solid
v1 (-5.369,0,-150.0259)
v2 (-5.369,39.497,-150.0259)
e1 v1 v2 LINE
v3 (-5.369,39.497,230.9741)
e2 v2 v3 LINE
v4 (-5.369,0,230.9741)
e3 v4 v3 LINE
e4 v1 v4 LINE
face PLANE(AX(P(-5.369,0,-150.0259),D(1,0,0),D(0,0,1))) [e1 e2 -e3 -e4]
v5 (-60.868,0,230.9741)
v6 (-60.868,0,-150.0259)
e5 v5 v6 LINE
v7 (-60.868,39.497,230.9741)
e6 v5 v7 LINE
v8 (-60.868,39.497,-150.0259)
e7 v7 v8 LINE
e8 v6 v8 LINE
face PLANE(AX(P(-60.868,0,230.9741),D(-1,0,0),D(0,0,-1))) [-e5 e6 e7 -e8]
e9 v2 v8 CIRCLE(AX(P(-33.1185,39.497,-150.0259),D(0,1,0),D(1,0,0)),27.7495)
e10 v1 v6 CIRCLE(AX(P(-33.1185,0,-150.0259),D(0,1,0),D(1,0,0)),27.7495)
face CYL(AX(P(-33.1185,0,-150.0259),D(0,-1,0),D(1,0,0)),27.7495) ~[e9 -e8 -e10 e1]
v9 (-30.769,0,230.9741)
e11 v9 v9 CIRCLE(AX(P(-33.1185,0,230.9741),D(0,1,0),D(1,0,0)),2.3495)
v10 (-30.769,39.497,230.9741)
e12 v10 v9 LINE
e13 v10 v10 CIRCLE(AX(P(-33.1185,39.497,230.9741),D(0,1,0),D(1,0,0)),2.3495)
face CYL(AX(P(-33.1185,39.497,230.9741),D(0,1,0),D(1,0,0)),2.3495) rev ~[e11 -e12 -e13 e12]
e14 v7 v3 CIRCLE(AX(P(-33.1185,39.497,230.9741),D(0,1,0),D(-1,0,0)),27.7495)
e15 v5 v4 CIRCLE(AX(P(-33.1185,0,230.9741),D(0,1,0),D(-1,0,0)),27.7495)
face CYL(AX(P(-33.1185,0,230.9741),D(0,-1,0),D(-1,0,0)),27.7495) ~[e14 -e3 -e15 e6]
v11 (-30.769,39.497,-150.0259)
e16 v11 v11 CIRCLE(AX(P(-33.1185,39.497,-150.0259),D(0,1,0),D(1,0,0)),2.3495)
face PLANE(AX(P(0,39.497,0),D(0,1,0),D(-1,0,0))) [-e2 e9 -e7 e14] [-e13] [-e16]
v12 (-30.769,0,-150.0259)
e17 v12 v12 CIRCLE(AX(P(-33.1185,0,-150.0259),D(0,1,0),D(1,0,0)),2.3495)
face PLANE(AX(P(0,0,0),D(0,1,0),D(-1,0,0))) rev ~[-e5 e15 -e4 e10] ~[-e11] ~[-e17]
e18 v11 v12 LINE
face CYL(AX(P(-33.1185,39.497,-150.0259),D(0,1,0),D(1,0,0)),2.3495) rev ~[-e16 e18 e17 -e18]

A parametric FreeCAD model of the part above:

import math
import FreeCAD as App
import Part
import Sketcher
from FreeCAD import Vector
Q = App.Units.Quantity

doc = App.newDocument("Part")
body = doc.addObject("PartDesign::Body", "Body")

sketch1 = body.newObject("Sketcher::SketchObject", "Sketch")
sketch1.AttachmentSupport = (doc.getObject("XZ_Plane"), [""])
sketch1.MapMode = "FlatFace"
sketch1.addGeometry(Part.LineSegment(Vector(-61, -150, 0), Vector(-61, 231, 0)), False)
sketch1.addGeometry(Part.ArcOfCircle(Part.Circle(Vector(-33, 231, 0), Vector(0, 0, 1), 28), math.radians(0), math.radians(180)), False)
sketch1.addGeometry(Part.LineSegment(Vector(-5, 231, 0), Vector(-5, -150, 0)), False)
sketch1.addGeometry(Part.ArcOfCircle(Part.Circle(Vector(-33, -150, 0), Vector(0, 0, 1), 28), math.radians(180), math.radians(360)), False)
sketch1.addConstraint(Sketcher.Constraint("Tangent", 0, 2, 1, 2))
sketch1.addConstraint(Sketcher.Constraint("Tangent", 1, 1, 2, 1))
sketch1.addConstraint(Sketcher.Constraint("Tangent", 2, 2, 3, 2))
sketch1.addConstraint(Sketcher.Constraint("Tangent", 3, 1, 0, 1))
sketch1.addConstraint(Sketcher.Constraint("Vertical", 0))
sketch1.addConstraint(Sketcher.Constraint("Vertical", 2))
sketch1.addConstraint(Sketcher.Constraint("DistanceY", 0, 1, 0, 2, Q("15 in")))
sketch1.addConstraint(Sketcher.Constraint("Radius", 1, Q("1.0925 in")))
sketch1.addConstraint(Sketcher.Constraint("DistanceX", 1, 3, -1, 1, 33.1185))
sketch1.addConstraint(Sketcher.Constraint("DistanceY", -1, 1, 1, 3, 230.974))
pad1 = body.newObject("PartDesign::Pad", "Pad")
pad1.Profile = sketch1
pad1.Length = Q("1.555 in")
pad1.Reversed = True

sketch2 = body.newObject("Sketcher::SketchObject", "Sketch001")
sketch2.AttachmentSupport = (doc.getObject("XZ_Plane"), [""])
sketch2.MapMode = "FlatFace"
sketch2.AttachmentOffset = App.Placement(Vector(0, 0, -1.555 * 25.4), App.Rotation())
sketch2.addGeometry(Part.Circle(Vector(-33.1, 231, 0), Vector(0, 0, 1), 2.3), False)
sketch2.addGeometry(Part.Circle(Vector(-33.1, -150, 0), Vector(0, 0, 1), 2.3), False)
sketch2.addConstraint(Sketcher.Constraint("Equal", 0, 1))
sketch2.addConstraint(Sketcher.Constraint("Vertical", 0, 3, 1, 3))
sketch2.addConstraint(Sketcher.Constraint("Diameter", 0, Q("0.185 in")))
sketch2.addConstraint(Sketcher.Constraint("DistanceY", 1, 3, 0, 3, Q("15 in")))
sketch2.addConstraint(Sketcher.Constraint("DistanceX", 0, 3, -1, 1, 33.1185))
sketch2.addConstraint(Sketcher.Constraint("DistanceY", -1, 1, 0, 3, 230.974))
pocket1 = body.newObject("PartDesign::Pocket", "Pocket")
pocket1.Profile = sketch2
pocket1.Type = "ThroughAll"
pocket1.Reversed = True

doc.recompute()
